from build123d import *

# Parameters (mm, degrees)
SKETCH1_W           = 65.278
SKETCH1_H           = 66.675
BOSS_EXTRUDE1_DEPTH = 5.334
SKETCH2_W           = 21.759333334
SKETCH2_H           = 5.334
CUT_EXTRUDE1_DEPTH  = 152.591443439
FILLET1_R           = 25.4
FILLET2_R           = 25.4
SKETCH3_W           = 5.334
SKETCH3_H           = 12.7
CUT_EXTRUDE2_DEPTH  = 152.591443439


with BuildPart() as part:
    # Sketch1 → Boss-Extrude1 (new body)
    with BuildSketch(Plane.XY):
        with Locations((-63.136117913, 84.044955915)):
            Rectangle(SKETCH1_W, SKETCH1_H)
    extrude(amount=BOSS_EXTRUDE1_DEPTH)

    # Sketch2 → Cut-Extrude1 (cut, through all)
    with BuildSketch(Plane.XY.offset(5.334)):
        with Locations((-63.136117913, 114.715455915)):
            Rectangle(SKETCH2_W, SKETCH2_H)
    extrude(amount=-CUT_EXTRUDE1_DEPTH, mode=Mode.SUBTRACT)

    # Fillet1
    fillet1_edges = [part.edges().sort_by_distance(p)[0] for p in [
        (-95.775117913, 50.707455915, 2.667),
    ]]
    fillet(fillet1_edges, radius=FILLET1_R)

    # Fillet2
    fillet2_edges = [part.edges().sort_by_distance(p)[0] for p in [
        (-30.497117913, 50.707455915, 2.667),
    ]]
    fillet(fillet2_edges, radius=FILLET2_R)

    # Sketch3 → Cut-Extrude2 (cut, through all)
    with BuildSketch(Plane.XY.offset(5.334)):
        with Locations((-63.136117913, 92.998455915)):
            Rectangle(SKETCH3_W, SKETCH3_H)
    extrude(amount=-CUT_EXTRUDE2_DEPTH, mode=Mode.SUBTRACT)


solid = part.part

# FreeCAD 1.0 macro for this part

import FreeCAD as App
import Part
import Sketcher
from FreeCAD import Vector
Q = App.Units.Quantity


def edges_at(feature, points):
    """Names of the edges that pass closest to the given points."""
    edges = feature.Shape.Edges
    near = lambda p: min(range(len(edges)), key=lambda i: edges[i].distToShape(Part.Vertex(*p))[0])
    return sorted({f"Edge{near(p) + 1}" for p in points})

doc = App.newDocument("Part")
body = doc.addObject("PartDesign::Body", "Body")

# Sketch on XY plane
sketch1 = body.newObject("Sketcher::SketchObject", "Sketch")
sketch1.AttachmentSupport = (doc.getObject("XY_Plane"), [""])
sketch1.MapMode = "FlatFace"
sketch1.addGeometry(Part.LineSegment(Vector(-96, 117, 0), Vector(-96, 51, 0)), False)
sketch1.addGeometry(Part.LineSegment(Vector(-96, 51, 0), Vector(-30, 51, 0)), False)
sketch1.addGeometry(Part.LineSegment(Vector(-30, 51, 0), Vector(-30, 117, 0)), False)
sketch1.addGeometry(Part.LineSegment(Vector(-30, 117, 0), Vector(-96, 117, 0)), False)
sketch1.addConstraint(Sketcher.Constraint("Coincident", 0, 2, 1, 1))
sketch1.addConstraint(Sketcher.Constraint("Coincident", 1, 2, 2, 1))
sketch1.addConstraint(Sketcher.Constraint("Coincident", 2, 2, 3, 1))
sketch1.addConstraint(Sketcher.Constraint("Coincident", 3, 2, 0, 1))
sketch1.addConstraint(Sketcher.Constraint("Vertical", 0))
sketch1.addConstraint(Sketcher.Constraint("Horizontal", 1))
sketch1.addConstraint(Sketcher.Constraint("Vertical", 2))
sketch1.addConstraint(Sketcher.Constraint("Horizontal", 3))
sketch1.addConstraint(Sketcher.Constraint("DistanceX", 1, 1, 1, 2, Q("2.57 in")))
sketch1.addConstraint(Sketcher.Constraint("DistanceY", 0, 2, 0, 1, Q("2.625 in")))
sketch1.addConstraint(Sketcher.Constraint("DistanceX", 0, 2, -1, 1, 95.775118))
sketch1.addConstraint(Sketcher.Constraint("DistanceY", -1, 1, 0, 2, 50.707456))
pad1 = body.newObject("PartDesign::Pad", "Pad")
pad1.Profile = sketch1
pad1.Length = Q("0.21 in")

# Sketch on XY plane
sketch2 = body.newObject("Sketcher::SketchObject", "Sketch001")
sketch2.AttachmentSupport = (doc.getObject("XY_Plane"), [""])
sketch2.MapMode = "FlatFace"
sketch2.AttachmentOffset = App.Placement(Vector(0, 0, 0.21 * 25.4), App.Rotation())
sketch2.addGeometry(Part.LineSegment(Vector(-74, 117, 0), Vector(-74, 112, 0)), False)
sketch2.addGeometry(Part.LineSegment(Vector(-74, 112, 0), Vector(-52, 112, 0)), False)
sketch2.addGeometry(Part.LineSegment(Vector(-52, 112, 0), Vector(-52, 117, 0)), False)
sketch2.addGeometry(Part.LineSegment(Vector(-52, 117, 0), Vector(-74, 117, 0)), False)
sketch2.addConstraint(Sketcher.Constraint("Coincident", 0, 2, 1, 1))
sketch2.addConstraint(Sketcher.Constraint("Coincident", 1, 2, 2, 1))
sketch2.addConstraint(Sketcher.Constraint("Coincident", 2, 2, 3, 1))
sketch2.addConstraint(Sketcher.Constraint("Coincident", 3, 2, 0, 1))
sketch2.addConstraint(Sketcher.Constraint("Vertical", 0))
sketch2.addConstraint(Sketcher.Constraint("Horizontal", 1))
sketch2.addConstraint(Sketcher.Constraint("Vertical", 2))
sketch2.addConstraint(Sketcher.Constraint("Horizontal", 3))
sketch2.addConstraint(Sketcher.Constraint("DistanceY", 0, 2, 0, 1, Q("0.21 in")))
sketch2.addConstraint(Sketcher.Constraint("DistanceX", 1, 1, 1, 2, 21.759333))
sketch2.addConstraint(Sketcher.Constraint("DistanceX", 1, 2, -1, 1, 52.256451))
sketch2.addConstraint(Sketcher.Constraint("DistanceY", -1, 1, 0, 2, 112.048456))
pocket1 = body.newObject("PartDesign::Pocket", "Pocket")
pocket1.Profile = sketch2
pocket1.Type = "ThroughAll"
doc.recompute()

fillet = body.newObject("PartDesign::Fillet", "Fillet")
fillet.Base = (pocket1, edges_at(pocket1, [(-95.775, 50.707, 2.667)]))
fillet.Radius = Q("1 in")
doc.recompute()

fillet2 = body.newObject("PartDesign::Fillet", "Fillet001")
fillet2.Base = (fillet, edges_at(fillet, [(-30.497, 50.707, 2.667)]))
fillet2.Radius = Q("1 in")

# Sketch on XY plane
sketch3 = body.newObject("Sketcher::SketchObject", "Sketch002")
sketch3.AttachmentSupport = (doc.getObject("XY_Plane"), [""])
sketch3.MapMode = "FlatFace"
sketch3.AttachmentOffset = App.Placement(Vector(0, 0, 0.21 * 25.4), App.Rotation())
sketch3.addGeometry(Part.LineSegment(Vector(-66, 99, 0), Vector(-66, 87, 0)), False)
sketch3.addGeometry(Part.LineSegment(Vector(-66, 87, 0), Vector(-60, 87, 0)), False)
sketch3.addGeometry(Part.LineSegment(Vector(-60, 87, 0), Vector(-60, 99, 0)), False)
sketch3.addGeometry(Part.LineSegment(Vector(-60, 99, 0), Vector(-66, 99, 0)), False)
sketch3.addConstraint(Sketcher.Constraint("Coincident", 0, 2, 1, 1))
sketch3.addConstraint(Sketcher.Constraint("Coincident", 1, 2, 2, 1))
sketch3.addConstraint(Sketcher.Constraint("Coincident", 2, 2, 3, 1))
sketch3.addConstraint(Sketcher.Constraint("Coincident", 3, 2, 0, 1))
sketch3.addConstraint(Sketcher.Constraint("Vertical", 0))
sketch3.addConstraint(Sketcher.Constraint("Horizontal", 1))
sketch3.addConstraint(Sketcher.Constraint("Vertical", 2))
sketch3.addConstraint(Sketcher.Constraint("Horizontal", 3))
sketch3.addConstraint(Sketcher.Constraint("DistanceY", 0, 2, 0, 1, Q("0.5 in")))
sketch3.addConstraint(Sketcher.Constraint("DistanceX", 1, 1, 1, 2, Q("0.21 in")))
sketch3.addConstraint(Sketcher.Constraint("DistanceX", 0, 2, -1, 1, 65.803118))
sketch3.addConstraint(Sketcher.Constraint("DistanceY", -1, 1, 0, 2, 86.648456))
pocket2 = body.newObject("PartDesign::Pocket", "Pocket001")
pocket2.Profile = sketch3
pocket2.Type = "ThroughAll"

doc.recompute()
